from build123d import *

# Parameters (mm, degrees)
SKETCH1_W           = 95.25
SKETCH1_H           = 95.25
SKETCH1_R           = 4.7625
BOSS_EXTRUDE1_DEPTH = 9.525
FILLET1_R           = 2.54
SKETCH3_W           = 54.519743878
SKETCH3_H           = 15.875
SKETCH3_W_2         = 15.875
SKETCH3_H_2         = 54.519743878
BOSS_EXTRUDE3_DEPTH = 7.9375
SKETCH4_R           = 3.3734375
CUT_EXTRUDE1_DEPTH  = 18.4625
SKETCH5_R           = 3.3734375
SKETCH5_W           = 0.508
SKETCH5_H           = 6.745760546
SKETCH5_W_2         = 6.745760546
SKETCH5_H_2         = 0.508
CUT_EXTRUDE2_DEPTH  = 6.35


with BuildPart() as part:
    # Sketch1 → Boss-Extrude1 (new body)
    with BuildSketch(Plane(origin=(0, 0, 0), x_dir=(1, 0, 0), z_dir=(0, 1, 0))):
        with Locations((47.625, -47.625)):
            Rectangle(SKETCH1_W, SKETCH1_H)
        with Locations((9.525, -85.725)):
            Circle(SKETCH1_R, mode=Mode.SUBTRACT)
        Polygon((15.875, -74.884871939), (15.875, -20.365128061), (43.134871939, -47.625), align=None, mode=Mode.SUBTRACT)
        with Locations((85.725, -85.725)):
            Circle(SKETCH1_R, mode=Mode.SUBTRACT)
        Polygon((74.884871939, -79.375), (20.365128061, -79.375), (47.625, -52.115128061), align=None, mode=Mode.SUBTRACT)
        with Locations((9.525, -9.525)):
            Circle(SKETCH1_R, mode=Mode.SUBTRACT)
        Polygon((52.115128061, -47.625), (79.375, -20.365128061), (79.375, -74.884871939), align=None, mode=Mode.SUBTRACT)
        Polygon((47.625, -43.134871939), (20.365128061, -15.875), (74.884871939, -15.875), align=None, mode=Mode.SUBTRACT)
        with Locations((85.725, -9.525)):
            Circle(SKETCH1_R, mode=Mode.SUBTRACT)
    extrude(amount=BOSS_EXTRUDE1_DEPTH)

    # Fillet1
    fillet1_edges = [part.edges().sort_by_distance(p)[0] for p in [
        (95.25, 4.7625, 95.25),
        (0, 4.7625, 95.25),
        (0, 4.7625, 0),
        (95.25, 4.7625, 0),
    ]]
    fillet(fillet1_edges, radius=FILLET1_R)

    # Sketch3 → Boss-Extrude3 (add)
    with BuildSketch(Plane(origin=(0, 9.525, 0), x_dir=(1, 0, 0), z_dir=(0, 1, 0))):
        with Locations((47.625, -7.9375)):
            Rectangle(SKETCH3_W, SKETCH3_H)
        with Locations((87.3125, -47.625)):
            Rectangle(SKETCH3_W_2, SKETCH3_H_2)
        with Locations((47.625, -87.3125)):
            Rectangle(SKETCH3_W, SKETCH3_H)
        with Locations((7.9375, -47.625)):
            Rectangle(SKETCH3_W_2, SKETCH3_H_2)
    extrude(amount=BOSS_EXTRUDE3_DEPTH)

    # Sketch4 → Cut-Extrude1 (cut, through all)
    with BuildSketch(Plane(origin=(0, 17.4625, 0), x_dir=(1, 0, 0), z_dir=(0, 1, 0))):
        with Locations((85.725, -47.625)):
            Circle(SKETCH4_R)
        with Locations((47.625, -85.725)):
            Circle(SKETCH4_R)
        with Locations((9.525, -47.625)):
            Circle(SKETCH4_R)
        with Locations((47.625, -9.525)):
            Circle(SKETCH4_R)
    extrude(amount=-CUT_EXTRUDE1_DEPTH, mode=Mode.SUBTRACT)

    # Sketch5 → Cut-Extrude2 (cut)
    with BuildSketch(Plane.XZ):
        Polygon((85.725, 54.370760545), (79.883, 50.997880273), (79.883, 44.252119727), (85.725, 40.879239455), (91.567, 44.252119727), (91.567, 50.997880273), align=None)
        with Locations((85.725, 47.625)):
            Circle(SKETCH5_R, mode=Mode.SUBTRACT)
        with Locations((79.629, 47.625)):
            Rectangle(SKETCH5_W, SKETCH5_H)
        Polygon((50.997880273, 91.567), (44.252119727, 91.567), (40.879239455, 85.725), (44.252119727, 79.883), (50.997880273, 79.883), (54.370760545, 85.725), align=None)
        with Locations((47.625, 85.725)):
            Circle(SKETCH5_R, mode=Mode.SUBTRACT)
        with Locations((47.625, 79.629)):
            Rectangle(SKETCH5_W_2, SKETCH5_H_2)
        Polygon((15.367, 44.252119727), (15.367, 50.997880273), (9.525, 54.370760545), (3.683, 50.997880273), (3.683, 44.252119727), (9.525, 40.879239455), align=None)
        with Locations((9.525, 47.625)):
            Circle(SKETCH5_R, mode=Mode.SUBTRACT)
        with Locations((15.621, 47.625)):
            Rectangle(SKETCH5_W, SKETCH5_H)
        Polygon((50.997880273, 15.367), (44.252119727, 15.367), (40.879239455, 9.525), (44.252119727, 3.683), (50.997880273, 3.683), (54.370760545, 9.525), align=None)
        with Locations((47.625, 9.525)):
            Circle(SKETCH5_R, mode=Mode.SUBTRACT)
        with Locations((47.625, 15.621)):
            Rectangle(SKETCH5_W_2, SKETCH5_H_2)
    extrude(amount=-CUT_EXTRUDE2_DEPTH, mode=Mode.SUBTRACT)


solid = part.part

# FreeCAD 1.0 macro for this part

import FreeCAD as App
import Part
import Sketcher
Q = App.Units.Quantity


def edges_at(feature, points):
    """Names of the edges that pass closest to the given points."""
    edges = feature.Shape.Edges
    near = lambda p: min(range(len(edges)), key=lambda i: edges[i].distToShape(Part.Vertex(*p))[0])
    return sorted({f"Edge{near(p) + 1}" for p in points})


def add_polygon(sketch, points):
    """Adds a closed chain of lines whose ends are joined by coincident constraints."""
    first, n = sketch.GeometryCount, len(points)
    for a, b in zip(points, points[1:] + points[:1]):
        sketch.addGeometry(Part.LineSegment(App.Vector(*a, 0), App.Vector(*b, 0)), False)
    for i in range(n):
        sketch.addConstraint(Sketcher.Constraint("Coincident", first + i, 2, first + (i + 1) % n, 1))

doc = App.newDocument("Part")
body = doc.addObject("PartDesign::Body", "Body")

sketch1 = body.newObject("Sketcher::SketchObject", "Sketch")
sketch1.AttachmentSupport = (doc.getObject("XZ_Plane"), [""])
sketch1.MapMode = "FlatFace"
add_polygon(sketch1, [(0, 0), (0, 95.2), (95.2, 95.2), (95.2, 0)])
sketch1.addGeometry(Part.Circle(App.Vector(9.5, 85.7, 0), App.Vector(0, 0, 1), 4.8), False)
sketch1.addGeometry(Part.Circle(App.Vector(85.7, 85.7, 0), App.Vector(0, 0, 1), 4.8), False)
add_polygon(sketch1, [(47.6, 52.1), (74.9, 79.4), (20.4, 79.4)])
add_polygon(sketch1, [(43.1, 47.6), (15.9, 74.9), (15.9, 20.4)])
sketch1.addGeometry(Part.Circle(App.Vector(9.5, 9.5, 0), App.Vector(0, 0, 1), 4.8), False)
add_polygon(sketch1, [(79.4, 74.9), (52.1, 47.6), (79.4, 20.4)])
add_polygon(sketch1, [(74.9, 15.9), (47.6, 43.1), (20.4, 15.9)])
sketch1.addGeometry(Part.Circle(App.Vector(85.7, 9.5, 0), App.Vector(0, 0, 1), 4.8), False)
sketch1.addConstraint([
    Sketcher.Constraint("Vertical", 0),
    Sketcher.Constraint("Horizontal", 1),
    Sketcher.Constraint("Vertical", 2),
    Sketcher.Constraint("Horizontal", 3),
    Sketcher.Constraint("Horizontal", 7),
    Sketcher.Constraint("Vertical", 10),
    Sketcher.Constraint("Vertical", 15),
    Sketcher.Constraint("Horizontal", 18),
    Sketcher.Constraint("Coincident", 3, 2, -1, 1),
    Sketcher.Constraint("Equal", 4, 5),
    Sketcher.Constraint("Equal", 5, 12),
    Sketcher.Constraint("Equal", 12, 19),
    Sketcher.Constraint("Perpendicular", 6, 8),
    Sketcher.Constraint("Parallel", 8, 9),
    Sketcher.Constraint("Perpendicular", 9, 11),
    Sketcher.Constraint("Parallel", 11, 13),
    Sketcher.Constraint("Perpendicular", 13, 14),
    Sketcher.Constraint("Parallel", 14, 16),
    Sketcher.Constraint("Perpendicular", 16, 17),
    Sketcher.Constraint("Horizontal", 4, 3, 5, 3),
    Sketcher.Constraint("Horizontal", 12, 3, 19, 3),
    Sketcher.Constraint("Horizontal", 11, 2, 13, 2),
    Sketcher.Constraint("Horizontal", 10, 2, 14, 2),
    Sketcher.Constraint("Horizontal", 9, 2, 15, 2),
    Sketcher.Constraint("Vertical", 4, 3, 12, 3),
    Sketcher.Constraint("Vertical", 5, 3, 19, 3),
    Sketcher.Constraint("Vertical", 8, 2, 16, 2),
    Sketcher.Constraint("Vertical", 7, 2, 17, 2),
    Sketcher.Constraint("Equal", 3, 0),
    Sketcher.Constraint("Equal", 18, 10),
    Sketcher.Constraint("Diameter", 4, Q("0.375 in")),
    Sketcher.Constraint("DistanceX", 4, 3, 5, 3, Q("3 in")),
    Sketcher.Constraint("DistanceY", 12, 3, 4, 3, Q("3 in")),
    Sketcher.Constraint("DistanceX", 1, 1, 1, 2, Q("3.75 in")),
    Sketcher.Constraint("DistanceX", 8, 2, 5, 3, Q("1.5 in")),
    Sketcher.Constraint("DistanceY", 6, 2, 5, 3, Q("0.25 in")),
    Sketcher.Constraint("DistanceX", 4, 3, 9, 2, Q("0.25 in")),
    Sketcher.Constraint("DistanceY", 10, 2, 8, 2, Q("1.25 in")),
    Sketcher.Constraint("DistanceX", 7, 2, 13, 2, Q("1.25 in")),
    Sketcher.Constraint("DistanceY", 12, 3, 17, 2, Q("0.25 in")),
    Sketcher.Constraint("DistanceX", -1, 1, 4, 3, Q("0.375 in")),
    Sketcher.Constraint("DistanceY", -1, 1, 4, 3, Q("3.375 in")),
    Sketcher.Constraint("Distance", 6, Q("38.551281 mm")),
])
pad1 = body.newObject("PartDesign::Pad", "Pad")
pad1.Profile = sketch1
pad1.Length = Q("0.375 in")
pad1.Reversed = True
doc.recompute()

fillet = body.newObject("PartDesign::Fillet", "Fillet")
fillet.Base = (pad1, edges_at(pad1, [
    (95.25, 4.763, 95.25),
    (0, 4.763, 95.25),
    (0, 4.763, 0),
    (95.25, 4.763, 0),
]))
fillet.Radius = Q("0.1 in")

sketch2 = body.newObject("Sketcher::SketchObject", "Sketch001")
sketch2.AttachmentSupport = (doc.getObject("XZ_Plane"), [""])
sketch2.MapMode = "FlatFace"
sketch2.AttachmentOffset = App.Placement(App.Vector(0, 0, -0.375 * 25.4), App.Rotation())
add_polygon(sketch2, [(20, 0), (20, 16), (75, 16), (75, 0)])
add_polygon(sketch2, [(79, 20), (79, 75), (95, 75), (95, 20)])
add_polygon(sketch2, [(20, 79), (20, 95), (75, 95), (75, 79)])
add_polygon(sketch2, [(0, 20), (0, 75), (16, 75), (16, 20)])
sketch2.addConstraint([
    Sketcher.Constraint("Vertical", 0),
    Sketcher.Constraint("Horizontal", 1),
    Sketcher.Constraint("Vertical", 2),
    Sketcher.Constraint("Horizontal", 3),
    Sketcher.Constraint("Vertical", 4),
    Sketcher.Constraint("Horizontal", 5),
    Sketcher.Constraint("Vertical", 6),
    Sketcher.Constraint("Horizontal", 7),
    Sketcher.Constraint("Vertical", 8),
    Sketcher.Constraint("Horizontal", 9),
    Sketcher.Constraint("Vertical", 10),
    Sketcher.Constraint("Horizontal", 11),
    Sketcher.Constraint("Vertical", 12),
    Sketcher.Constraint("Horizontal", 13),
    Sketcher.Constraint("Vertical", 14),
    Sketcher.Constraint("Horizontal", 15),
    Sketcher.Constraint("PointOnObject", 2, 2, -1),
    Sketcher.Constraint("PointOnObject", 12, 2, -2),
    Sketcher.Constraint("Horizontal", 5, 2, 12, 2),
    Sketcher.Constraint("Horizontal", 7, 2, 14, 2),
    Sketcher.Constraint("Vertical", 3, 2, 8, 2),
    Sketcher.Constraint("Vertical", 2, 2, 9, 2),
    Sketcher.Constraint("Equal", 7, 13),
    Sketcher.Constraint("Equal", 15, 0),
    Sketcher.Constraint("Equal", 11, 4),
    Sketcher.Constraint("Equal", 2, 8),
    Sketcher.Constraint("DistanceY", 0, 2, 11, 2, Q("2.5 in")),
    Sketcher.Constraint("DistanceX", 5, 1, 5, 2, Q("0.625 in")),
    Sketcher.Constraint("DistanceX", -1, 1, 5, 2, Q("3.75 in")),
    Sketcher.Constraint("DistanceX", 1, 1, 1, 2, Q("54.519744 mm")),
    Sketcher.Constraint("DistanceX", -1, 1, 0, 2, Q("20.365128 mm")),
    Sketcher.Constraint("DistanceY", -1, 1, 4, 2, Q("74.884872 mm")),
])
pad2 = body.newObject("PartDesign::Pad", "Pad001")
pad2.Profile = sketch2
pad2.Length = Q("0.3125 in")
pad2.Reversed = True

sketch3 = body.newObject("Sketcher::SketchObject", "Sketch002")
sketch3.AttachmentSupport = (doc.getObject("XZ_Plane"), [""])
sketch3.MapMode = "FlatFace"
sketch3.AttachmentOffset = App.Placement(App.Vector(0, 0, -0.6875 * 25.4), App.Rotation())
sketch3.addGeometry([
    Part.Circle(App.Vector(85.7, 47.6, 0), App.Vector(0, 0, 1), 3.4),
    Part.Circle(App.Vector(47.6, 85.7, 0), App.Vector(0, 0, 1), 3.4),
    Part.Circle(App.Vector(9.5, 47.6, 0), App.Vector(0, 0, 1), 3.4),
    Part.Circle(App.Vector(47.6, 9.5, 0), App.Vector(0, 0, 1), 3.4),
], False)
sketch3.addConstraint([
    Sketcher.Constraint("Equal", 0, 1),
    Sketcher.Constraint("Equal", 1, 2),
    Sketcher.Constraint("Equal", 2, 3),
    Sketcher.Constraint("Horizontal", 0, 3, 2, 3),
    Sketcher.Constraint("Vertical", 1, 3, 3, 3),
    Sketcher.Constraint("Diameter", 0, Q("0.265625 in")),
    Sketcher.Constraint("DistanceX", 2, 3, 0, 3, Q("3 in")),
    Sketcher.Constraint("DistanceY", 3, 3, 1, 3, Q("3 in")),
    Sketcher.Constraint("DistanceX", 1, 3, 0, 3, Q("1.5 in")),
    Sketcher.Constraint("DistanceY", 0, 3, 1, 3, Q("1.5 in")),
    Sketcher.Constraint("DistanceX", -1, 1, 0, 3, Q("3.375 in")),
    Sketcher.Constraint("DistanceY", -1, 1, 0, 3, Q("1.875 in")),
])
pocket1 = body.newObject("PartDesign::Pocket", "Pocket")
pocket1.Profile = sketch3
pocket1.Type = "ThroughAll"
pocket1.Reversed = True

sketch4 = body.newObject("Sketcher::SketchObject", "Sketch003")
sketch4.AttachmentSupport = (doc.getObject("XZ_Plane"), [""])
sketch4.MapMode = "FlatFace"
add_polygon(sketch4, [(85.7, 54.4), (79.9, 51), (79.4, 51), (79.4, 44.3), (79.9, 44.3), (85.7, 40.9), (91.6, 44.3), (91.6, 51)])
sketch4.addGeometry(Part.Circle(App.Vector(85.7, 47.6, 0), App.Vector(0, 0, 1), 3.4), False)
add_polygon(sketch4, [(51, 91.6), (44.3, 91.6), (40.9, 85.7), (44.3, 79.9), (44.3, 79.4), (51, 79.4), (51, 79.9), (54.4, 85.7)])
sketch4.addGeometry(Part.Circle(App.Vector(47.6, 85.7, 0), App.Vector(0, 0, 1), 3.4), False)
add_polygon(sketch4, [(9.5, 40.9), (15.4, 44.3), (15.9, 44.3), (15.9, 51), (15.4, 51), (9.5, 54.4), (3.7, 51), (3.7, 44.3)])
sketch4.addGeometry(Part.Circle(App.Vector(9.5, 47.6, 0), App.Vector(0, 0, 1), 3.4), False)
add_polygon(sketch4, [(54.4, 9.5), (51, 15.4), (51, 15.9), (44.3, 15.9), (44.3, 15.4), (40.9, 9.5), (44.3, 3.7), (51, 3.7)])
sketch4.addGeometry(Part.Circle(App.Vector(47.6, 9.5, 0), App.Vector(0, 0, 1), 3.4), False)
sketch4.addConstraint([
    Sketcher.Constraint("Horizontal", 1),
    Sketcher.Constraint("Vertical", 2),
    Sketcher.Constraint("Horizontal", 3),
    Sketcher.Constraint("Vertical", 6),
    Sketcher.Constraint("Horizontal", 9),
    Sketcher.Constraint("Vertical", 12),
    Sketcher.Constraint("Horizontal", 13),
    Sketcher.Constraint("Vertical", 14),
    Sketcher.Constraint("Horizontal", 19),
    Sketcher.Constraint("Vertical", 20),
    Sketcher.Constraint("Horizontal", 21),
    Sketcher.Constraint("Vertical", 24),
    Sketcher.Constraint("Vertical", 28),
    Sketcher.Constraint("Horizontal", 29),
    Sketcher.Constraint("Vertical", 30),
    Sketcher.Constraint("Horizontal", 33),
    Sketcher.Constraint("Equal", 8, 17),
    Sketcher.Constraint("Equal", 17, 26),
    Sketcher.Constraint("Equal", 26, 35),
    Sketcher.Constraint("Parallel", 0, 5),
    Sketcher.Constraint("Parallel", 4, 7),
    Sketcher.Constraint("Perpendicular", 7, 10),
    Sketcher.Constraint("Perpendicular", 5, 11),
    Sketcher.Constraint("Parallel", 10, 15),
    Sketcher.Constraint("Parallel", 11, 16),
    Sketcher.Constraint("Perpendicular", 16, 18),
    Sketcher.Constraint("Perpendicular", 15, 22),
    Sketcher.Constraint("Parallel", 18, 23),
    Sketcher.Constraint("Parallel", 22, 25),
    Sketcher.Constraint("Perpendicular", 23, 27),
    Sketcher.Constraint("Perpendicular", 25, 31),
    Sketcher.Constraint("Parallel", 27, 32),
    Sketcher.Constraint("Parallel", 31, 34),
    Sketcher.Constraint("Horizontal", 8, 3, 26, 3),
    Sketcher.Constraint("Horizontal", 3, 2, 5, 2),
    Sketcher.Constraint("Horizontal", 1, 2, 6, 2),
    Sketcher.Constraint("Horizontal", 17, 3, 10, 2),
    Sketcher.Constraint("Horizontal", 11, 2, 14, 2),
    Sketcher.Constraint("Horizontal", 10, 2, 15, 2),
    Sketcher.Constraint("Horizontal", 5, 2, 18, 2),
    Sketcher.Constraint("Horizontal", 6, 2, 20, 2),
    Sketcher.Constraint("Horizontal", 7, 2, 22, 2),
    Sketcher.Constraint("Horizontal", 21, 2, 23, 2),
    Sketcher.Constraint("Horizontal", 19, 2, 24, 2),
    Sketcher.Constraint("Horizontal", 4, 2, 25, 2),
    Sketcher.Constraint("Horizontal", 27, 2, 30, 2),
    Sketcher.Constraint("Horizontal", 35, 3, 31, 2),
    Sketcher.Constraint("Horizontal", 31, 2, 34, 2),
    Sketcher.Constraint("Vertical", 17, 3, 35, 3),
    Sketcher.Constraint("Vertical", 0, 2, 3, 2),
    Sketcher.Constraint("Vertical", 8, 3, 4, 2),
    Sketcher.Constraint("Vertical", 4, 2, 7, 2),
    Sketcher.Constraint("Vertical", 9, 2, 11, 2),
    Sketcher.Constraint("Vertical", 26, 3, 22, 2),
    Sketcher.Constraint("Vertical", 16, 2, 27, 2),
    Sketcher.Constraint("Vertical", 12, 2, 29, 2),
    Sketcher.Constraint("Vertical", 10, 2, 31, 2),
    Sketcher.Constraint("Vertical", 30, 2, 32, 2),
    Sketcher.Constraint("Equal", 3, 19),
    Sketcher.Constraint("Equal", 33, 2),
    Sketcher.Constraint("Equal", 21, 12),
    Sketcher.Constraint("Equal", 14, 28),
    Sketcher.Constraint("Equal", 7, 10),
    Sketcher.Constraint("Diameter", 8, Q("0.265625 in")),
    Sketcher.Constraint("Angle", 0, Q("-150 deg")),
    Sketcher.Constraint("DistanceX", 26, 3, 8, 3, Q("3 in")),
    Sketcher.Constraint("DistanceY", 35, 3, 17, 3, Q("3 in")),
    Sketcher.Constraint("DistanceX", 1, 2, 1, 1, Q("0.02 in")),
    Sketcher.Constraint("DistanceX", 17, 3, 8, 3, Q("1.5 in")),
    Sketcher.Constraint("DistanceY", 8, 3, 17, 3, Q("1.5 in")),
    Sketcher.Constraint("DistanceX", 0, 2, 8, 3, Q("0.23 in")),
    Sketcher.Constraint("DistanceX", -1, 1, 8, 3, Q("3.375 in")),
    Sketcher.Constraint("DistanceY", -1, 1, 8, 3, Q("1.875 in")),
    Sketcher.Constraint("DistanceX", 9, 2, 9, 1, Q("6.745761 mm")),
    Sketcher.Constraint("DistanceY", -1, 1, 0, 2, Q("50.99788 mm")),
    Sketcher.Constraint("DistanceX", -1, 1, 9, 2, Q("44.25212 mm")),
])
pocket2 = body.newObject("PartDesign::Pocket", "Pocket001")
pocket2.Profile = sketch4
pocket2.Length = Q("0.25 in")

doc.recompute()
